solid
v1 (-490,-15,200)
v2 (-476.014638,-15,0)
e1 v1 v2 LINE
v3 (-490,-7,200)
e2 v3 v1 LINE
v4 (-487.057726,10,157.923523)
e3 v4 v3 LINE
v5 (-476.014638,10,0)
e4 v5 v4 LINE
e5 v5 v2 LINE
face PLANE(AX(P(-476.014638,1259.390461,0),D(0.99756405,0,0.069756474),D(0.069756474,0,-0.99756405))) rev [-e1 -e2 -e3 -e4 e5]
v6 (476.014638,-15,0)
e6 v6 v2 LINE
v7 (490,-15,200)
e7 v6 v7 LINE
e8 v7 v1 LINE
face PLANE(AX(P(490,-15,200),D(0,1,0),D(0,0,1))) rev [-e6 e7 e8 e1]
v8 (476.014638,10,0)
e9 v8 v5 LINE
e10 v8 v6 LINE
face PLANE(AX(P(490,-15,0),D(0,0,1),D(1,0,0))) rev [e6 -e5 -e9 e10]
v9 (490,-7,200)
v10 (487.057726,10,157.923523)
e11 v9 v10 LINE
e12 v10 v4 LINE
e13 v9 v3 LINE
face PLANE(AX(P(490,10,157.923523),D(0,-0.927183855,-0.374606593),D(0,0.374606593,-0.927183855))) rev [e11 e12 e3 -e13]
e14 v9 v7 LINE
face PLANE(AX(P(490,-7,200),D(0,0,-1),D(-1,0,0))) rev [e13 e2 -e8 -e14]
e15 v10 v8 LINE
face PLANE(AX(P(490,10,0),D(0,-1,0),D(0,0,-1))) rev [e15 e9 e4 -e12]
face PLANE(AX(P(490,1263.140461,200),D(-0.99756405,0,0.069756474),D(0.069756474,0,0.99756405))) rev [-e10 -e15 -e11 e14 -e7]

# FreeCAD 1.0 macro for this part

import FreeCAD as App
import Part
import Sketcher
Q = App.Units.Quantity


def add_polygon(sketch, points):
    """Adds a closed chain of lines whose ends are joined by coincident constraints."""
    first, n = sketch.GeometryCount, len(points)
    for a, b in zip(points, points[1:] + points[:1]):
        sketch.addGeometry(Part.LineSegment(App.Vector(*a, 0), App.Vector(*b, 0)), False)
    for i in range(n):
        sketch.addConstraint(Sketcher.Constraint("Coincident", first + i, 2, first + (i + 1) % n, 1))

doc = App.newDocument("Part")
params = doc.addObject("Spreadsheet::Sheet", "Params")
for row, (alias, value) in enumerate([
    ("sketch1_width", "8 mm"),
    ("sketch1_width2", "25 mm"),
    ("sketch1_height", "200 mm"),
    ("pad1_length", "980 mm"),
], start=1):
    params.set(f"A{row}", alias)
    params.set(f"B{row}", "=" + value)
    params.setAlias(f"B{row}", alias)

body = doc.addObject("PartDesign::Body", "Body")

sketch1 = doc.addObject("Sketcher::SketchObject", "Sketch")
body.addObject(sketch1)
sketch1.AttachmentSupport = (doc.YZ_Plane, [""])
sketch1.MapMode = "FlatFace"
add_polygon(sketch1, [(-7, 200), (-15, 200), (-15, 0), (10, 0), (10, 157.923523)])
sketch1.addConstraint(Sketcher.Constraint("Horizontal", 0))
sketch1.addConstraint(Sketcher.Constraint("Vertical", 1))
sketch1.addConstraint(Sketcher.Constraint("Horizontal", 2))
sketch1.addConstraint(Sketcher.Constraint("Vertical", 3))
sketch1.addConstraint(Sketcher.Constraint("PointOnObject", 1, 2, -1))
sketch1.addConstraint(Sketcher.Constraint("DistanceX", 0, 2, 0, 1, 8.0))
sketch1.addConstraint(Sketcher.Constraint("DistanceX", 2, 1, 2, 2, 25.0))
sketch1.addConstraint(Sketcher.Constraint("DistanceY", 1, 2, 1, 1, 200.0))
sketch1.addConstraint(Sketcher.Constraint("Angle", 4, Q("112 deg")))
sketch1.addConstraint(Sketcher.Constraint("DistanceX", 0, 2, -1, 1, 15.0))
sketch1.setExpression("Constraints[10]", "Params.sketch1_width")
sketch1.setExpression("Constraints[11]", "Params.sketch1_width2")
sketch1.setExpression("Constraints[12]", "Params.sketch1_height")
pad1 = doc.addObject("PartDesign::Pad", "Pad")
body.addObject(pad1)
pad1.Profile = sketch1
pad1.setExpression("Length", "Params.pad1_length")
pad1.Midplane = True

sketch2 = doc.addObject("Sketcher::SketchObject", "Sketch001")
body.addObject(sketch2)
sketch2.AttachmentSupport = (doc.XZ_Plane, [""])
sketch2.MapMode = "FlatFace"
add_polygon(sketch2, [(-476.014638, 0), (-335.776226, -2005.502727), (-4346.781679, -2285.979551), (-4641.243866, 1925.025903), (-630.238412, 2205.502727), (-490, 200)])
sketch2.addConstraint(Sketcher.Constraint("PointOnObject", 5, 2, -1))
sketch2.addConstraint(Sketcher.Constraint("Perpendicular", 0, 1))
sketch2.addConstraint(Sketcher.Constraint("Perpendicular", 1, 2))
sketch2.addConstraint(Sketcher.Constraint("Perpendicular", 2, 3))
sketch2.addConstraint(Sketcher.Constraint("Perpendicular", 3, 4))
sketch2.addConstraint(Sketcher.Constraint("Parallel", 4, 5))
sketch2.addConstraint(Sketcher.Constraint("Equal", 0, 4))
sketch2.addConstraint(Sketcher.Constraint("Angle", 0, Q("-86 deg")))
sketch2.addConstraint(Sketcher.Constraint("DistanceX", 4, 2, -1, 1, 490.0))
sketch2.addConstraint(Sketcher.Constraint("DistanceY", -1, 1, 4, 2, 200.0))
sketch2.addConstraint(Sketcher.Constraint("Distance", 2, 4221.2883))
sketch2.addConstraint(Sketcher.Constraint("Distance", 1, 4020.79992))
pocket1 = doc.addObject("PartDesign::Pocket", "Pocket")
body.addObject(pocket1)
pocket1.Profile = sketch2
pocket1.Type = "ThroughAll"
pocket1.Midplane = True

sketch3 = doc.addObject("Sketcher::SketchObject", "Sketch002")
body.addObject(sketch3)
sketch3.AttachmentSupport = (doc.XZ_Plane, [""])
sketch3.MapMode = "FlatFace"
add_polygon(sketch3, [(490, 200), (630.238412, 2205.502727), (4641.243866, 1925.025903), (4346.781679, -2285.979551), (335.776226, -2005.502727), (476.014638, 0)])
sketch3.addConstraint(Sketcher.Constraint("PointOnObject", 4, 2, -1))
sketch3.addConstraint(Sketcher.Constraint("Perpendicular", 0, 1))
sketch3.addConstraint(Sketcher.Constraint("Perpendicular", 1, 2))
sketch3.addConstraint(Sketcher.Constraint("Perpendicular", 2, 3))
sketch3.addConstraint(Sketcher.Constraint("Perpendicular", 3, 4))
sketch3.addConstraint(Sketcher.Constraint("Parallel", 4, 5))
sketch3.addConstraint(Sketcher.Constraint("Equal", 0, 4))
sketch3.addConstraint(Sketcher.Constraint("Angle", 0, Q("86 deg")))
sketch3.addConstraint(Sketcher.Constraint("DistanceX", -1, 1, 5, 2, 490.0))
sketch3.addConstraint(Sketcher.Constraint("DistanceY", -1, 1, 5, 2, 200.0))
sketch3.addConstraint(Sketcher.Constraint("Distance", 2, 4221.2883))
sketch3.addConstraint(Sketcher.Constraint("Distance", 1, 4020.79992))
pocket2 = doc.addObject("PartDesign::Pocket", "Pocket001")
body.addObject(pocket2)
pocket2.Profile = sketch3
pocket2.Type = "ThroughAll"
pocket2.Midplane = True

doc.recompute()
